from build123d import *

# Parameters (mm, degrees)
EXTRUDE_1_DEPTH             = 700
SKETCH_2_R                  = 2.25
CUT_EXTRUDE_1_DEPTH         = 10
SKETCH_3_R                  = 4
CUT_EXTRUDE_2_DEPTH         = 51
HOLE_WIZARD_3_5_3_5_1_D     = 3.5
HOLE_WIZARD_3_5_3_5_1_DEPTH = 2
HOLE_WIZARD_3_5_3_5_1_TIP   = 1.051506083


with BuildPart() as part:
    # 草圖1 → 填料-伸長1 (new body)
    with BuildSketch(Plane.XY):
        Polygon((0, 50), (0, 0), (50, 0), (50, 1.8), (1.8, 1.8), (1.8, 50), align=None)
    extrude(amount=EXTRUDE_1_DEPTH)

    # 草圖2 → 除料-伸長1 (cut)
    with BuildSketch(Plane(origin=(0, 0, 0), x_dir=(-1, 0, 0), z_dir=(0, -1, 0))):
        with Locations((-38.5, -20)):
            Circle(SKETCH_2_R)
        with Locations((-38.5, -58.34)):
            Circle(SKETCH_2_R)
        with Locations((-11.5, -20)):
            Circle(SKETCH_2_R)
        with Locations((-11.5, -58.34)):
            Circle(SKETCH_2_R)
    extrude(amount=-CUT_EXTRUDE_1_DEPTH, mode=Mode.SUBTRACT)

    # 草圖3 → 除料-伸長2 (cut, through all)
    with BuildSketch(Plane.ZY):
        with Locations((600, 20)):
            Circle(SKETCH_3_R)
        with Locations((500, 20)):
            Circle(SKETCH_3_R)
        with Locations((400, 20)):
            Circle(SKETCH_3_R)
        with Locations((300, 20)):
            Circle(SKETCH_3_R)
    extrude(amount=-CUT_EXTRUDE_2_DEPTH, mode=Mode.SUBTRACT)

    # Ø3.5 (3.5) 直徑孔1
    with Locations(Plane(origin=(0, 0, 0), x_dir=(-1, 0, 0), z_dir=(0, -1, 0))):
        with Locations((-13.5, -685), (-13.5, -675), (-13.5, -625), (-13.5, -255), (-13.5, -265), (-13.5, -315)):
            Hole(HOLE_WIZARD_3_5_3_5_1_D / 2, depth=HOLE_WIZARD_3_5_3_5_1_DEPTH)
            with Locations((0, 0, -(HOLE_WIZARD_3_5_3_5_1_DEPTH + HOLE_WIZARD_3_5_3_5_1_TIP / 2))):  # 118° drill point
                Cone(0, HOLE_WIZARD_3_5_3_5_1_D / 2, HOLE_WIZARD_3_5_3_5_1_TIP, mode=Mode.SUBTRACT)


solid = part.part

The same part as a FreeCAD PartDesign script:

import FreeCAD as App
import Part
import Sketcher
Q = App.Units.Quantity

doc = App.newDocument("Part")
body = doc.addObject("PartDesign::Body", "Body")

# Sketch on XY plane
sketch1 = body.newObject("Sketcher::SketchObject", "Sketch")
sketch1.AttachmentSupport = (doc.getObject("XY_Plane"), [""])
sketch1.MapMode = "FlatFace"
sketch1.addGeometry([
    Part.LineSegment(App.Vector(0, 50, 0), App.Vector(0, 0, 0)),  # 0
    Part.LineSegment(App.Vector(0, 0, 0), App.Vector(50, 0, 0)),  # 1
    Part.LineSegment(App.Vector(50, 0, 0), App.Vector(50, 1.8, 0)),  # 2
    Part.LineSegment(App.Vector(50, 1.8, 0), App.Vector(1.8, 1.8, 0)),  # 3
    Part.LineSegment(App.Vector(1.8, 1.8, 0), App.Vector(1.8, 50, 0)),  # 4
    Part.LineSegment(App.Vector(1.8, 50, 0), App.Vector(0, 50, 0)),  # 5
], False)
sketch1.addConstraint([
    Sketcher.Constraint("Coincident", 0, 2, 1, 1),
    Sketcher.Constraint("Coincident", 1, 2, 2, 1),
    Sketcher.Constraint("Coincident", 2, 2, 3, 1),
    Sketcher.Constraint("Coincident", 3, 2, 4, 1),
    Sketcher.Constraint("Coincident", 4, 2, 5, 1),
    Sketcher.Constraint("Coincident", 5, 2, 0, 1),
    Sketcher.Constraint("Vertical", 0),
    Sketcher.Constraint("Horizontal", 1),
    Sketcher.Constraint("Vertical", 2),
    Sketcher.Constraint("Horizontal", 3),
    Sketcher.Constraint("Vertical", 4),
    Sketcher.Constraint("Horizontal", 5),
    Sketcher.Constraint("Coincident", 0, 2, -1, 1),
    Sketcher.Constraint("Equal", 1, 0),
    Sketcher.Constraint("Equal", 5, 2),
    Sketcher.Constraint("DistanceX", 1, 1, 1, 2, Q("50 mm")),
    Sketcher.Constraint("DistanceX", 3, 2, 3, 1, Q("48.2 mm")),
])
pad1 = body.newObject("PartDesign::Pad", "Pad")
pad1.Profile = sketch1
pad1.Length = 700

# Sketch on XZ plane
sketch2 = body.newObject("Sketcher::SketchObject", "Sketch001")
sketch2.AttachmentSupport = (doc.getObject("XZ_Plane"), [""])
sketch2.MapMode = "FlatFace"
sketch2.addGeometry([
    Part.Circle(App.Vector(38.5, 20, 0), App.Vector(0, 0, 1), 2.25),
    Part.Circle(App.Vector(38.5, 58.34, 0), App.Vector(0, 0, 1), 2.25),
    Part.Circle(App.Vector(11.5, 20, 0), App.Vector(0, 0, 1), 2.25),
    Part.Circle(App.Vector(11.5, 58.34, 0), App.Vector(0, 0, 1), 2.25),
], False)
sketch2.addConstraint([
    Sketcher.Constraint("Equal", 0, 1),
    Sketcher.Constraint("Equal", 1, 2),
    Sketcher.Constraint("Equal", 2, 3),
    Sketcher.Constraint("Horizontal", 0, 3, 2, 3),
    Sketcher.Constraint("Horizontal", 1, 3, 3, 3),
    Sketcher.Constraint("Vertical", 0, 3, 1, 3),
    Sketcher.Constraint("Vertical", 2, 3, 3, 3),
    Sketcher.Constraint("Diameter", 0, Q("4.5 mm")),
    Sketcher.Constraint("DistanceY", -1, 1, 0, 3, Q("20 mm")),
    Sketcher.Constraint("DistanceX", 2, 3, 0, 3, Q("27 mm")),
    Sketcher.Constraint("DistanceX", -1, 1, 0, 3, Q("38.5 mm")),
    Sketcher.Constraint("DistanceY", -1, 1, 1, 3, Q("58.34 mm")),
])
pocket1 = body.newObject("PartDesign::Pocket", "Pocket")
pocket1.Profile = sketch2
pocket1.Length = 10

# Sketch on YZ plane
sketch3 = body.newObject("Sketcher::SketchObject", "Sketch002")
sketch3.AttachmentSupport = (doc.getObject("YZ_Plane"), [""])
sketch3.MapMode = "FlatFace"
sketch3.addGeometry([
    Part.Circle(App.Vector(20, 600, 0), App.Vector(0, 0, 1), 4),
    Part.Circle(App.Vector(20, 500, 0), App.Vector(0, 0, 1), 4),
    Part.Circle(App.Vector(20, 400, 0), App.Vector(0, 0, 1), 4),
    Part.Circle(App.Vector(20, 300, 0), App.Vector(0, 0, 1), 4),
], False)
sketch3.addConstraint([
    Sketcher.Constraint("Equal", 0, 1),
    Sketcher.Constraint("Equal", 1, 2),
    Sketcher.Constraint("Equal", 2, 3),
    Sketcher.Constraint("Vertical", 0, 3, 1, 3),
    Sketcher.Constraint("Vertical", 1, 3, 2, 3),
    Sketcher.Constraint("Vertical", 2, 3, 3, 3),
    Sketcher.Constraint("Diameter", 0, Q("8 mm")),
    Sketcher.Constraint("DistanceX", -1, 1, 0, 3, Q("20 mm")),
    Sketcher.Constraint("DistanceY", -1, 1, 0, 3, Q("600 mm")),
    Sketcher.Constraint("DistanceY", -1, 1, 1, 3, Q("500 mm")),
    Sketcher.Constraint("DistanceY", -1, 1, 2, 3, Q("400 mm")),
    Sketcher.Constraint("DistanceY", -1, 1, 3, 3, Q("300 mm")),
])
pocket2 = body.newObject("PartDesign::Pocket", "Pocket001")
pocket2.Profile = sketch3
pocket2.Type = "ThroughAll"
pocket2.Reversed = True

# Sketch on XZ plane
sketch4 = body.newObject("Sketcher::SketchObject", "Sketch003")
sketch4.AttachmentSupport = (doc.getObject("XZ_Plane"), [""])
sketch4.MapMode = "FlatFace"
sketch4.addGeometry([
    Part.Circle(App.Vector(13.5, 685, 0), App.Vector(0, 0, 1), 1.75),  # 0
    Part.Circle(App.Vector(13.5, 675, 0), App.Vector(0, 0, 1), 1.75),  # 1
    Part.Circle(App.Vector(13.5, 625, 0), App.Vector(0, 0, 1), 1.75),  # 2
    Part.Circle(App.Vector(13.5, 255, 0), App.Vector(0, 0, 1), 1.75),  # 3
    Part.Circle(App.Vector(13.5, 265, 0), App.Vector(0, 0, 1), 1.75),  # 4
    Part.Circle(App.Vector(13.5, 315, 0), App.Vector(0, 0, 1), 1.75),  # 5
], False)
sketch4.addConstraint([
    Sketcher.Constraint("Equal", 0, 1),
    Sketcher.Constraint("Equal", 1, 2),
    Sketcher.Constraint("Equal", 2, 3),
    Sketcher.Constraint("Equal", 3, 4),
    Sketcher.Constraint("Equal", 4, 5),
    Sketcher.Constraint("Vertical", 0, 3, 1, 3),
    Sketcher.Constraint("Vertical", 1, 3, 2, 3),
    Sketcher.Constraint("Vertical", 2, 3, 3, 3),
    Sketcher.Constraint("Vertical", 3, 3, 4, 3),
    Sketcher.Constraint("Vertical", 4, 3, 5, 3),
    Sketcher.Constraint("Diameter", 0, Q("3.5 mm")),
    Sketcher.Constraint("DistanceY", -1, 1, 0, 3, Q("685 mm")),
    Sketcher.Constraint("DistanceY", -1, 1, 1, 3, Q("675 mm")),
    Sketcher.Constraint("DistanceY", -1, 1, 2, 3, Q("625 mm")),
    Sketcher.Constraint("DistanceY", -1, 1, 3, 3, Q("255 mm")),
    Sketcher.Constraint("DistanceY", -1, 1, 4, 3, Q("265 mm")),
    Sketcher.Constraint("DistanceY", -1, 1, 5, 3, Q("315 mm")),
    Sketcher.Constraint("DistanceX", -1, 1, 0, 3, Q("13.5 mm")),
])
doc.recompute()
hole = body.newObject("PartDesign::Hole", "Hole")
hole.Profile = sketch4
hole.ThreadType = "None"
hole.Diameter = 3.5
hole.DepthType = "Dimension"
hole.Depth = 2
hole.DrillPoint = "Angled"
hole.DrillPointAngle = 118

doc.recompute()
